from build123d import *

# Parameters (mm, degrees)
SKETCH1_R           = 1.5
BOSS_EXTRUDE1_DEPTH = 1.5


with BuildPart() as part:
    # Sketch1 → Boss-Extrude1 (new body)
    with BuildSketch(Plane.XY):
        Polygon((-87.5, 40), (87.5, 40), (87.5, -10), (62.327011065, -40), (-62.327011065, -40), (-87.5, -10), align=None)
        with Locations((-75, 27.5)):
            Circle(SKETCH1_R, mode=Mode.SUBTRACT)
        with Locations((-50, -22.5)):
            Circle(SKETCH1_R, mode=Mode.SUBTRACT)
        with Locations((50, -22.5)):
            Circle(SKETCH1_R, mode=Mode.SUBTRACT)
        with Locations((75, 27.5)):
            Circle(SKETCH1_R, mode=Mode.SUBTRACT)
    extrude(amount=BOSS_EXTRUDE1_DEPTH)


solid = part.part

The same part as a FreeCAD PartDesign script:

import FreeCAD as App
import Part
import Sketcher
from FreeCAD import Vector
Q = App.Units.Quantity

doc = App.newDocument("Part")
body = doc.addObject("PartDesign::Body", "Body")

sketch1 = doc.addObject("Sketcher::SketchObject", "Sketch")
body.addObject(sketch1)
sketch1.AttachmentSupport = (doc.XY_Plane, [""])
sketch1.MapMode = "FlatFace"
sketch1.addGeometry(Part.LineSegment(Vector(87.5, 40, 0), Vector(-87.5, 40, 0)), False)
sketch1.addGeometry(Part.LineSegment(Vector(-87.5, 40, 0), Vector(-87.5, -10, 0)), False)
sketch1.addGeometry(Part.LineSegment(Vector(-87.5, -10, 0), Vector(-62.3, -40, 0)), False)
sketch1.addGeometry(Part.LineSegment(Vector(-62.3, -40, 0), Vector(62.3, -40, 0)), False)
sketch1.addGeometry(Part.LineSegment(Vector(62.3, -40, 0), Vector(87.5, -10, 0)), False)
sketch1.addGeometry(Part.LineSegment(Vector(87.5, -10, 0), Vector(87.5, 40, 0)), False)
sketch1.addGeometry(Part.Circle(Vector(50, -22.5, 0), Vector(0, 0, 1), 1.5), False)
sketch1.addGeometry(Part.Circle(Vector(-50, -22.5, 0), Vector(0, 0, 1), 1.5), False)
sketch1.addGeometry(Part.Circle(Vector(75, 27.5, 0), Vector(0, 0, 1), 1.5), False)
sketch1.addGeometry(Part.Circle(Vector(-75, 27.5, 0), Vector(0, 0, 1), 1.5), False)
sketch1.addConstraint(Sketcher.Constraint("Coincident", 0, 2, 1, 1))
sketch1.addConstraint(Sketcher.Constraint("Coincident", 1, 2, 2, 1))
sketch1.addConstraint(Sketcher.Constraint("Coincident", 2, 2, 3, 1))
sketch1.addConstraint(Sketcher.Constraint("Coincident", 3, 2, 4, 1))
sketch1.addConstraint(Sketcher.Constraint("Coincident", 4, 2, 5, 1))
sketch1.addConstraint(Sketcher.Constraint("Coincident", 5, 2, 0, 1))
sketch1.addConstraint(Sketcher.Constraint("Horizontal", 0))
sketch1.addConstraint(Sketcher.Constraint("Vertical", 1))
sketch1.addConstraint(Sketcher.Constraint("Horizontal", 3))
sketch1.addConstraint(Sketcher.Constraint("Vertical", 5))
sketch1.addConstraint(Sketcher.Constraint("Equal", 6, 7))
sketch1.addConstraint(Sketcher.Constraint("Equal", 7, 8))
sketch1.addConstraint(Sketcher.Constraint("Equal", 8, 9))
sketch1.addConstraint(Sketcher.Constraint("Symmetric", 6, 3, 7, 3, -2))
sketch1.addConstraint(Sketcher.Constraint("Symmetric", 8, 3, 9, 3, -2))
sketch1.addConstraint(Sketcher.Constraint("Symmetric", 1, 2, 4, 2, -2))
sketch1.addConstraint(Sketcher.Constraint("Equal", 2, 4))
sketch1.addConstraint(Sketcher.Constraint("Diameter", 6, Q("3 mm")))
sketch1.addConstraint(Sketcher.Constraint("DistanceX", 0, 2, 0, 1, Q("175 mm")))
sketch1.addConstraint(Sketcher.Constraint("DistanceY", 1, 2, 1, 1, Q("50 mm")))
sketch1.addConstraint(Sketcher.Constraint("Angle", 2, Q("-50 deg")))
sketch1.addConstraint(Sketcher.Constraint("DistanceX", -1, 1, 6, 3, Q("50 mm")))
sketch1.addConstraint(Sketcher.Constraint("DistanceX", -1, 1, 8, 3, Q("75 mm")))
sketch1.addConstraint(Sketcher.Constraint("DistanceY", -1, 1, 0, 2, Q("40 mm")))
sketch1.addConstraint(Sketcher.Constraint("DistanceY", 2, 2, -1, 1, Q("40 mm")))
sketch1.addConstraint(Sketcher.Constraint("DistanceY", 6, 3, 8, 3, Q("50 mm")))
sketch1.addConstraint(Sketcher.Constraint("DistanceY", 6, 3, -1, 1, Q("22.5 mm")))
pad1 = doc.addObject("PartDesign::Pad", "Pad")
body.addObject(pad1)
pad1.Profile = sketch1
pad1.Length = 1.5

doc.recompute()
